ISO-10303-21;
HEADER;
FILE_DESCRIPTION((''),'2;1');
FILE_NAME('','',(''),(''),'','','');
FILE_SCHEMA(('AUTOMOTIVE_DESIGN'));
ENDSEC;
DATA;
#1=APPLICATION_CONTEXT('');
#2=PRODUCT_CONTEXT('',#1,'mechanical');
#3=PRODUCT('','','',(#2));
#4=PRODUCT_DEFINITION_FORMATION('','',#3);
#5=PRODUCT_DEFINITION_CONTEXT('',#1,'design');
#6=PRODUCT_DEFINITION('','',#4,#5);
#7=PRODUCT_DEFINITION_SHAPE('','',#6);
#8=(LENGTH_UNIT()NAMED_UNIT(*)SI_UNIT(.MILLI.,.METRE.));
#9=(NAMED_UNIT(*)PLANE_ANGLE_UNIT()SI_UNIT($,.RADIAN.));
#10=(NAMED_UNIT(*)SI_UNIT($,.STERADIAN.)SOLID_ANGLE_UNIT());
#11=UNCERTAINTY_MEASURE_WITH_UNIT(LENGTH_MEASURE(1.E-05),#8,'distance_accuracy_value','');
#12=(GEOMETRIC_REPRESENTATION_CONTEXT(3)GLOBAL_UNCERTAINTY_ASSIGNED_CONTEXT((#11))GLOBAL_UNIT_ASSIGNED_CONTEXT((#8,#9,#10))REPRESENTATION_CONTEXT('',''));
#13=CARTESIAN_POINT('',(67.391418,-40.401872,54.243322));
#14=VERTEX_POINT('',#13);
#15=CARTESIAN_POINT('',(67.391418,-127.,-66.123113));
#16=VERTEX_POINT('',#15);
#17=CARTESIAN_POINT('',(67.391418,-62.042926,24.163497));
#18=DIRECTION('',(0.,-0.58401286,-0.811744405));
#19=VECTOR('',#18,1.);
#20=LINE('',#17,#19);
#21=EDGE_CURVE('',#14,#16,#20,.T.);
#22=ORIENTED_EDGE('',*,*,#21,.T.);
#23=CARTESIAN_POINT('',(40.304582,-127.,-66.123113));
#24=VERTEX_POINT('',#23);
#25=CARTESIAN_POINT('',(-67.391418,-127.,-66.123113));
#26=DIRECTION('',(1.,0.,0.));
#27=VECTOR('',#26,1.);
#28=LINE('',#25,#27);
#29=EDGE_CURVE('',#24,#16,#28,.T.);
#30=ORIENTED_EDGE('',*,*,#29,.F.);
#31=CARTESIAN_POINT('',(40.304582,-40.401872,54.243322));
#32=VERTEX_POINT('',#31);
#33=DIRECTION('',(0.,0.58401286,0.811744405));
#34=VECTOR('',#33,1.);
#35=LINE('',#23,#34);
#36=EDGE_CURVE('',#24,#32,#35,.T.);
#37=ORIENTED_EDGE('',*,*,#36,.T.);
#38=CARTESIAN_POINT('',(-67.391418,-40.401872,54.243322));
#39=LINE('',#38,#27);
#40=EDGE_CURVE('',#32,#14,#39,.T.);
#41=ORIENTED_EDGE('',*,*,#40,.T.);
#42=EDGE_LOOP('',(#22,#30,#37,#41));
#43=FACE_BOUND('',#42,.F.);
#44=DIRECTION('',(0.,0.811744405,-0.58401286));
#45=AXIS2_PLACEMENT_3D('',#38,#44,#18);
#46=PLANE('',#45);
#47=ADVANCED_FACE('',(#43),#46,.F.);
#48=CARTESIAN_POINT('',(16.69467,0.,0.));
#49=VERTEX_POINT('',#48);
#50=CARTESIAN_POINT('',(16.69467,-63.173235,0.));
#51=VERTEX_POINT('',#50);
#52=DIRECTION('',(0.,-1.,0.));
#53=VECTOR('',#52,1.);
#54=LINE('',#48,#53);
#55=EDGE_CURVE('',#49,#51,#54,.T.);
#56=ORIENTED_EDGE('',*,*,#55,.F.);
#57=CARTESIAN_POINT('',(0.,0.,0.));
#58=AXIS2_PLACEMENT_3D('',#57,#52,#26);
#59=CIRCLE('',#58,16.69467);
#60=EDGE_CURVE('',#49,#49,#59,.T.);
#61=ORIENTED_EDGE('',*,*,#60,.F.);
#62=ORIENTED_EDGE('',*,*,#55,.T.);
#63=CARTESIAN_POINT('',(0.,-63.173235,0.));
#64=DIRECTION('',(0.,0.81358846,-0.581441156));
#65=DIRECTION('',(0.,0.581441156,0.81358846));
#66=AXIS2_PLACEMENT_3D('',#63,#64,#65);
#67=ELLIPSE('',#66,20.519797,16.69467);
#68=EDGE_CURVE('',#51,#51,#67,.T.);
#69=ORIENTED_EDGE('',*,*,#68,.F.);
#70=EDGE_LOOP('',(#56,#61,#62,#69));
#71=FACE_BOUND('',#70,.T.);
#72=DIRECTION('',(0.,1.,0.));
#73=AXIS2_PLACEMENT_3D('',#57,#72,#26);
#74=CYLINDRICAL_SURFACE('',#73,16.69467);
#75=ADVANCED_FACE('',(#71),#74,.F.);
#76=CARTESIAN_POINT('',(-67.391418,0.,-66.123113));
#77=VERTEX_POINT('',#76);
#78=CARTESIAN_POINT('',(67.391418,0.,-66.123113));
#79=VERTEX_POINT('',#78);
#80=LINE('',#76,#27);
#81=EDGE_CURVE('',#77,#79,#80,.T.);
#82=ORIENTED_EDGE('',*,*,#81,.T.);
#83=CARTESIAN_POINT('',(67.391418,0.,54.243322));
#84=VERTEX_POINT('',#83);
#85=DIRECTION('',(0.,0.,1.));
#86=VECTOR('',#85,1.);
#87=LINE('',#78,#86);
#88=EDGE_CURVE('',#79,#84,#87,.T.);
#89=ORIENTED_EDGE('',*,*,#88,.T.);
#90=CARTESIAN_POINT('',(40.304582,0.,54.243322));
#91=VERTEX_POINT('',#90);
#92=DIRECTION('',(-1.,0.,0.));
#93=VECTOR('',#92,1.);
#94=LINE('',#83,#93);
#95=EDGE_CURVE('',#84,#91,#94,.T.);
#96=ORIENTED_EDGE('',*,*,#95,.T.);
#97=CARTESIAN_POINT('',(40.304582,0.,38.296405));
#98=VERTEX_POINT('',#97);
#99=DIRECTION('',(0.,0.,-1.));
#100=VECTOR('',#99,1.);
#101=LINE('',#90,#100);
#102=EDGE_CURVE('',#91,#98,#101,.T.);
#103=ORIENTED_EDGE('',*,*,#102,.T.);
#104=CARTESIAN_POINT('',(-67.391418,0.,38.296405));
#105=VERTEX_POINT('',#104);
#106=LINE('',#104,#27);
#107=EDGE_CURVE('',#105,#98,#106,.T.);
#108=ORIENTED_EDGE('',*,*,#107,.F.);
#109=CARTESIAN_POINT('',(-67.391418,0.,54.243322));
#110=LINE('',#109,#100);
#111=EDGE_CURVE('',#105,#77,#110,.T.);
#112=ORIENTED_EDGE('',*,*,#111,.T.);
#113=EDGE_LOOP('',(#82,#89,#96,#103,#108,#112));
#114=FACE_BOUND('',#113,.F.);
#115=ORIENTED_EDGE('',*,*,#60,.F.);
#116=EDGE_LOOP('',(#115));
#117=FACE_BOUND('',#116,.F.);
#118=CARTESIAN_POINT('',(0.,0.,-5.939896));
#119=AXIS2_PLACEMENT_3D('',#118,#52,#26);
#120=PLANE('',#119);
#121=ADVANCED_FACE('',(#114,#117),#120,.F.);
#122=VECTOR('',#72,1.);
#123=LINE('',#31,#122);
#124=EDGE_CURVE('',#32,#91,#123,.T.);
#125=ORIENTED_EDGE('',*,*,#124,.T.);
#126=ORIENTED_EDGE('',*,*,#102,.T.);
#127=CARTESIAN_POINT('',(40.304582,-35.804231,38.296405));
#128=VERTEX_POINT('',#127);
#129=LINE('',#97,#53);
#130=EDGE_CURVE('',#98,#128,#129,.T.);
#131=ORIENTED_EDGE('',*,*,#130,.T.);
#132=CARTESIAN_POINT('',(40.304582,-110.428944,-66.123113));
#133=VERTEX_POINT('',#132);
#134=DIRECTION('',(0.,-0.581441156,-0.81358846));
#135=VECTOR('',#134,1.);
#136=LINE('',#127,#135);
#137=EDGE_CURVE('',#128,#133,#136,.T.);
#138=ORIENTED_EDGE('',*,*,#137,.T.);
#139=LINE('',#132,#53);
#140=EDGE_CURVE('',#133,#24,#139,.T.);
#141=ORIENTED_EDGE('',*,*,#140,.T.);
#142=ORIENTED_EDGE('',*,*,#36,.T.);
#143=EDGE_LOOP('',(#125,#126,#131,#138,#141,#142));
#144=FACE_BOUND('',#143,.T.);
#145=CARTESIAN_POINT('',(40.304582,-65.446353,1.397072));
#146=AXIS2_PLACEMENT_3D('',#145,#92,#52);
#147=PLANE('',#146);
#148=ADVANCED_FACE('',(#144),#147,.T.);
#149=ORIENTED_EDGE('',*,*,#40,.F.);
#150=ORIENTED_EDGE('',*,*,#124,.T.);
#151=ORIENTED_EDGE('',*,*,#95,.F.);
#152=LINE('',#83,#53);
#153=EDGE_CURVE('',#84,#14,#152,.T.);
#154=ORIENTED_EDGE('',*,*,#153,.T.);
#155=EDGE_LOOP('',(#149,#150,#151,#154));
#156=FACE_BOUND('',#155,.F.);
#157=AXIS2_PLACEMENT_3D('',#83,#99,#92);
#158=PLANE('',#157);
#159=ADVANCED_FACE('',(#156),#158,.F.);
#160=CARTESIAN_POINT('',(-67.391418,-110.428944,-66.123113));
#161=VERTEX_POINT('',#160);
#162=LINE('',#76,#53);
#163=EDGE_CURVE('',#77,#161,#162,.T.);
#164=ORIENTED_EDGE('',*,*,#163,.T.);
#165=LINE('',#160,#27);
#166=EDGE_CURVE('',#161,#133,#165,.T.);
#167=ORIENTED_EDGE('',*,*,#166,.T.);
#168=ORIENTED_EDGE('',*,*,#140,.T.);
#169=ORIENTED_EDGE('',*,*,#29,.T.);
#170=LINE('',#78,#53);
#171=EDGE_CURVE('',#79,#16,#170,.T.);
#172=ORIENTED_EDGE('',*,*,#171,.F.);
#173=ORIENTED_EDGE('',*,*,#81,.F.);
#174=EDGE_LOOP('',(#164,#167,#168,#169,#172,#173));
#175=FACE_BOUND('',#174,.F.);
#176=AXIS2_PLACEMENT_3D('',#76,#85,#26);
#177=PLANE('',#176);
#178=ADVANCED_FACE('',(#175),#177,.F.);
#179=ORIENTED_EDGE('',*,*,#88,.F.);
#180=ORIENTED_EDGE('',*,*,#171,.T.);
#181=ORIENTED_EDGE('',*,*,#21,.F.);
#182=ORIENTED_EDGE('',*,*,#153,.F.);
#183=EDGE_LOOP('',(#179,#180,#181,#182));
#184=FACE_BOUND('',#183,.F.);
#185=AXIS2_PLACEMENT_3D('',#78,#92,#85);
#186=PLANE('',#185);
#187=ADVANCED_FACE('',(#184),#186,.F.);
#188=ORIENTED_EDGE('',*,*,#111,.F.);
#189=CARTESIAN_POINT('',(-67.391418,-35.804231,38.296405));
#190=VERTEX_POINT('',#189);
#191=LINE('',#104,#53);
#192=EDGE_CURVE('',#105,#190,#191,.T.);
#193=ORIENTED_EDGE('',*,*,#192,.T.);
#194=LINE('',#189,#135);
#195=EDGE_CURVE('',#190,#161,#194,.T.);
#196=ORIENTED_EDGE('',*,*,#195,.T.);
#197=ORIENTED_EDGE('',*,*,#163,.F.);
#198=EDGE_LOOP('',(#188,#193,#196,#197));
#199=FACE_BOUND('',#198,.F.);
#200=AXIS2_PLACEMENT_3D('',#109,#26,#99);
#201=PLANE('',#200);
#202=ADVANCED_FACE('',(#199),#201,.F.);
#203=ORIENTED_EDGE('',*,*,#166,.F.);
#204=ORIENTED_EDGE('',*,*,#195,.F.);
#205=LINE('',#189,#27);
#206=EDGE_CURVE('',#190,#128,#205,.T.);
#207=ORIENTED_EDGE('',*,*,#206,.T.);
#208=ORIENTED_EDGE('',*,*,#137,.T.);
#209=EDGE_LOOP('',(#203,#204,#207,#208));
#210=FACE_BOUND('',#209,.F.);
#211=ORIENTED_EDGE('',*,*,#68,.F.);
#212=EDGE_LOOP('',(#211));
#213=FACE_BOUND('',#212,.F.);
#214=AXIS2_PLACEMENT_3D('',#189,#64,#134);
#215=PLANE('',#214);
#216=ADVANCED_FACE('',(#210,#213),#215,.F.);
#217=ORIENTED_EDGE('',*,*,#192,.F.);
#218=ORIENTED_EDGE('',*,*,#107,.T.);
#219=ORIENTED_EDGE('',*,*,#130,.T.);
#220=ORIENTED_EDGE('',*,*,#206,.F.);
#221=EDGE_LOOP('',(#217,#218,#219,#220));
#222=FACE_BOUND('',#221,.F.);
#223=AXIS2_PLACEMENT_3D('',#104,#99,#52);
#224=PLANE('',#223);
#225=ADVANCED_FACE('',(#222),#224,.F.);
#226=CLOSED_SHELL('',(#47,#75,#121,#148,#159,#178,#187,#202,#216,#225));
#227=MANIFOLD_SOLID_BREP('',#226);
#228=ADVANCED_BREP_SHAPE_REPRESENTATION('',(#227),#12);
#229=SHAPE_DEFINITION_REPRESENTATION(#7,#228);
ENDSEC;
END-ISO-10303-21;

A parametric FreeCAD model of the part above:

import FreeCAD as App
import Part
import Sketcher
Q = App.Units.Quantity


def add_polygon(sketch, points):
    """Adds a closed chain of lines whose ends are joined by coincident constraints."""
    first, n = sketch.GeometryCount, len(points)
    for a, b in zip(points, points[1:] + points[:1]):
        sketch.addGeometry(Part.LineSegment(App.Vector(*a, 0), App.Vector(*b, 0)), False)
    for i in range(n):
        sketch.addConstraint(Sketcher.Constraint("Coincident", first + i, 2, first + (i + 1) % n, 1))

doc = App.newDocument("Part")
body = doc.addObject("PartDesign::Body", "Body")

# Sketch on XZ plane
sketch1 = doc.addObject("Sketcher::SketchObject", "Sketch")
body.addObject(sketch1)
sketch1.AttachmentSupport = (doc.XZ_Plane, [""])
sketch1.MapMode = "FlatFace"
add_polygon(sketch1, [(67, 54), (-67, 54), (-67, -66), (67, -66)])  # lines 0-3
sketch1.addGeometry(Part.Circle(App.Vector(0, 0, 0), App.Vector(0, 0, 1), 17), False)  # 4
sketch1.addConstraint([
    Sketcher.Constraint("Horizontal", 0),
    Sketcher.Constraint("Vertical", 1),
    Sketcher.Constraint("Horizontal", 2),
    Sketcher.Constraint("Vertical", 3),
    Sketcher.Constraint("Coincident", 4, 3, -1, 1),
    Sketcher.Constraint("Diameter", 4, 33.38934),
    Sketcher.Constraint("DistanceX", 0, 2, 0, 1, 134.782836),
    Sketcher.Constraint("DistanceY", 1, 2, 1, 1, 120.366435),
    Sketcher.Constraint("DistanceX", 0, 2, -1, 1, 67.391418),
    Sketcher.Constraint("DistanceY", -1, 1, 0, 2, 54.243322),
])
pad1 = doc.addObject("PartDesign::Pad", "Pad")
body.addObject(pad1)
pad1.Profile = sketch1
pad1.Length = Q("5 in")

# Sketch on YZ plane
sketch2 = doc.addObject("Sketcher::SketchObject", "Sketch001")
body.addObject(sketch2)
sketch2.AttachmentSupport = (doc.YZ_Plane, [""])
sketch2.MapMode = "FlatFace"
sketch2.AttachmentOffset = App.Placement(App.Vector(0, 0, -67.391418), App.Rotation())
add_polygon(sketch2, [(-127, 54), (-40, 54), (-127, -66)])  # lines 0-2
sketch2.addConstraint([
    Sketcher.Constraint("Horizontal", 0),
    Sketcher.Constraint("Vertical", 2),
    Sketcher.Constraint("DistanceX", 1, 2, -1, 1, Q("5 in")),
    Sketcher.Constraint("Distance", 1, 148.281201),
    Sketcher.Constraint("DistanceX", 0, 1, 0, 2, 86.598128),
    Sketcher.Constraint("DistanceY", -1, 1, 0, 2, 54.243322),
])
pocket1 = doc.addObject("PartDesign::Pocket", "Pocket")
body.addObject(pocket1)
pocket1.Profile = sketch2
pocket1.Length = Q("5.36 in")
pocket1.Reversed = True

# Sketch on YZ plane
sketch3 = doc.addObject("Sketcher::SketchObject", "Sketch002")
body.addObject(sketch3)
sketch3.AttachmentSupport = (doc.YZ_Plane, [""])
sketch3.MapMode = "FlatFace"
sketch3.AttachmentOffset = App.Placement(App.Vector(0, 0, -67.391418), App.Rotation())
add_polygon(sketch3, [(0, 54), (0, 38), (-36, 38), (-110, -66), (-127, -66), (-40, 54)])  # lines 0-5
sketch3.addConstraint([
    Sketcher.Constraint("Vertical", 0),
    Sketcher.Constraint("Horizontal", 1),
    Sketcher.Constraint("Horizontal", 3),
    Sketcher.Constraint("Horizontal", 5),
    Sketcher.Constraint("PointOnObject", 0, 2, -2),
    Sketcher.Constraint("DistanceX", 3, 2, -1, 1, Q("5 in")),
    Sketcher.Constraint("Distance", 4, 148.281201),
    Sketcher.Constraint("DistanceX", 1, 2, 1, 1, 35.804231),
    Sketcher.Constraint("DistanceX", 5, 1, 5, 2, 40.401872),
    Sketcher.Constraint("DistanceX", 3, 2, 3, 1, 16.571056),
    Sketcher.Constraint("DistanceY", 0, 2, 0, 1, 15.946917),
    Sketcher.Constraint("DistanceY", -1, 1, 0, 2, 38.296405),
])
pocket2 = doc.addObject("PartDesign::Pocket", "Pocket001")
body.addObject(pocket2)
pocket2.Profile = sketch3
pocket2.Length = Q("4.24 in")
pocket2.Reversed = True

doc.recompute()
